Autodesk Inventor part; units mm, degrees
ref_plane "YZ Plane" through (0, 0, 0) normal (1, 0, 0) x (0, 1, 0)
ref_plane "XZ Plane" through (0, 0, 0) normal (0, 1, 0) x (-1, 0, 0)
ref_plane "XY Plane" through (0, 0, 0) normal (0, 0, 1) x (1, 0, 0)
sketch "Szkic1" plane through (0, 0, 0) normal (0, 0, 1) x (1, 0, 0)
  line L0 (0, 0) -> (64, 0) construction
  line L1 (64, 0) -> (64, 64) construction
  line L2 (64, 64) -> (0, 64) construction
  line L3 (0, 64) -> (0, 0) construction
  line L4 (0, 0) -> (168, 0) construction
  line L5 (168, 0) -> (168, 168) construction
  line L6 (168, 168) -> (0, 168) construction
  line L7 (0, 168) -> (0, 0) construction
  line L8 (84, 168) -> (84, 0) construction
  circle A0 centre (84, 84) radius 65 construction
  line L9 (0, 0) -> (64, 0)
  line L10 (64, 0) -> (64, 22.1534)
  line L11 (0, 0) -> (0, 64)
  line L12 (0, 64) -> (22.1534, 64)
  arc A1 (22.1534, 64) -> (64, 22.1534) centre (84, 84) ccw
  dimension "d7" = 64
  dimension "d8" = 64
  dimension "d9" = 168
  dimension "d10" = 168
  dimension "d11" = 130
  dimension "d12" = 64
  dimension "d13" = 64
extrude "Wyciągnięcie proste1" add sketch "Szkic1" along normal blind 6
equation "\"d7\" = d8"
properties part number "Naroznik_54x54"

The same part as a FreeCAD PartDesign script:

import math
import FreeCAD as App
import Part
import Sketcher
from FreeCAD import Vector

doc = App.newDocument("Part")
body = doc.addObject("PartDesign::Body", "Body")

# Sketch on XY plane
sketch1 = body.newObject("Sketcher::SketchObject", "Sketch")
sketch1.AttachmentSupport = (doc.getObject("XY_Plane"), [""])
sketch1.MapMode = "FlatFace"
sketch1.addGeometry(Part.LineSegment(Vector(0, 64, 0), Vector(0, 0, 0)), False)
sketch1.addGeometry(Part.LineSegment(Vector(0, 0, 0), Vector(64, 0, 0)), False)
sketch1.addGeometry(Part.LineSegment(Vector(64, 0, 0), Vector(64, 22, 0)), False)
sketch1.addGeometry(Part.ArcOfCircle(Part.Circle(Vector(84, 84, 0), Vector(0, 0, 1), 65), math.radians(-162), math.radians(-108)), False)
sketch1.addGeometry(Part.LineSegment(Vector(22, 64, 0), Vector(0, 64, 0)), False)
sketch1.addConstraint(Sketcher.Constraint("Coincident", 0, 2, 1, 1))
sketch1.addConstraint(Sketcher.Constraint("Coincident", 1, 2, 2, 1))
sketch1.addConstraint(Sketcher.Constraint("Coincident", 2, 2, 3, 2))
sketch1.addConstraint(Sketcher.Constraint("Coincident", 3, 1, 4, 1))
sketch1.addConstraint(Sketcher.Constraint("Coincident", 4, 2, 0, 1))
sketch1.addConstraint(Sketcher.Constraint("Vertical", 0))
sketch1.addConstraint(Sketcher.Constraint("Horizontal", 1))
sketch1.addConstraint(Sketcher.Constraint("Vertical", 2))
sketch1.addConstraint(Sketcher.Constraint("Horizontal", 4))
sketch1.addConstraint(Sketcher.Constraint("Coincident", 0, 2, -1, 1))
sketch1.addConstraint(Sketcher.Constraint("Equal", 1, 0))
sketch1.addConstraint(Sketcher.Constraint("Equal", 4, 2))
sketch1.addConstraint(Sketcher.Constraint("Radius", 3, 65.0))
sketch1.addConstraint(Sketcher.Constraint("DistanceX", 1, 1, 1, 2, 64.0))
sketch1.addConstraint(Sketcher.Constraint("DistanceX", -1, 1, 3, 3, 84.0))
pad1 = body.newObject("PartDesign::Pad", "Pad")
pad1.Profile = sketch1
pad1.Length = 6

doc.recompute()
